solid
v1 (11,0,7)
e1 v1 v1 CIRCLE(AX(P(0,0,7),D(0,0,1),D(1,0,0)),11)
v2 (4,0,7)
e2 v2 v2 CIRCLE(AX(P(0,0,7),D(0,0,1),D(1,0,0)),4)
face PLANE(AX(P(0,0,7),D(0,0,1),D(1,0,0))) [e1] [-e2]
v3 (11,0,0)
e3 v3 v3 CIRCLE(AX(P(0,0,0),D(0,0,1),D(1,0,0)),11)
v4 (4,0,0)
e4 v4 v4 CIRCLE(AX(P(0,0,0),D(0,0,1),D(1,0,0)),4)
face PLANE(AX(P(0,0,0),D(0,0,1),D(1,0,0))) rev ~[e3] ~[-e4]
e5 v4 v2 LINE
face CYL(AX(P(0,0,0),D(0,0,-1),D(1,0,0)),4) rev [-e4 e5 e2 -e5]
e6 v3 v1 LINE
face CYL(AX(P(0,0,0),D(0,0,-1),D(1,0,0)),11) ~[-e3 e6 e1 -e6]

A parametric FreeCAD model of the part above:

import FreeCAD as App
import Part
import Sketcher
from FreeCAD import Vector
Q = App.Units.Quantity

doc = App.newDocument("Part")
body = doc.addObject("PartDesign::Body", "Body")

# Sketch on XY plane
sketch1 = body.newObject("Sketcher::SketchObject", "Sketch")
sketch1.AttachmentSupport = (doc.getObject("XY_Plane"), [""])
sketch1.MapMode = "FlatFace"
sketch1.addGeometry([
    Part.Circle(Vector(0, 0, 0), Vector(0, 0, 1), 11),
    Part.Circle(Vector(0, 0, 0), Vector(0, 0, 1), 4),
], False)
sketch1.addConstraint([
    Sketcher.Constraint("Coincident", 0, 3, -1, 1),
    Sketcher.Constraint("Coincident", 1, 3, -1, 1),
    Sketcher.Constraint("Diameter", 0, Q("22 mm")),
    Sketcher.Constraint("Diameter", 1, Q("8 mm")),
])
pad1 = body.newObject("PartDesign::Pad", "Pad")
pad1.Profile = sketch1
pad1.Length = 7

doc.recompute()
